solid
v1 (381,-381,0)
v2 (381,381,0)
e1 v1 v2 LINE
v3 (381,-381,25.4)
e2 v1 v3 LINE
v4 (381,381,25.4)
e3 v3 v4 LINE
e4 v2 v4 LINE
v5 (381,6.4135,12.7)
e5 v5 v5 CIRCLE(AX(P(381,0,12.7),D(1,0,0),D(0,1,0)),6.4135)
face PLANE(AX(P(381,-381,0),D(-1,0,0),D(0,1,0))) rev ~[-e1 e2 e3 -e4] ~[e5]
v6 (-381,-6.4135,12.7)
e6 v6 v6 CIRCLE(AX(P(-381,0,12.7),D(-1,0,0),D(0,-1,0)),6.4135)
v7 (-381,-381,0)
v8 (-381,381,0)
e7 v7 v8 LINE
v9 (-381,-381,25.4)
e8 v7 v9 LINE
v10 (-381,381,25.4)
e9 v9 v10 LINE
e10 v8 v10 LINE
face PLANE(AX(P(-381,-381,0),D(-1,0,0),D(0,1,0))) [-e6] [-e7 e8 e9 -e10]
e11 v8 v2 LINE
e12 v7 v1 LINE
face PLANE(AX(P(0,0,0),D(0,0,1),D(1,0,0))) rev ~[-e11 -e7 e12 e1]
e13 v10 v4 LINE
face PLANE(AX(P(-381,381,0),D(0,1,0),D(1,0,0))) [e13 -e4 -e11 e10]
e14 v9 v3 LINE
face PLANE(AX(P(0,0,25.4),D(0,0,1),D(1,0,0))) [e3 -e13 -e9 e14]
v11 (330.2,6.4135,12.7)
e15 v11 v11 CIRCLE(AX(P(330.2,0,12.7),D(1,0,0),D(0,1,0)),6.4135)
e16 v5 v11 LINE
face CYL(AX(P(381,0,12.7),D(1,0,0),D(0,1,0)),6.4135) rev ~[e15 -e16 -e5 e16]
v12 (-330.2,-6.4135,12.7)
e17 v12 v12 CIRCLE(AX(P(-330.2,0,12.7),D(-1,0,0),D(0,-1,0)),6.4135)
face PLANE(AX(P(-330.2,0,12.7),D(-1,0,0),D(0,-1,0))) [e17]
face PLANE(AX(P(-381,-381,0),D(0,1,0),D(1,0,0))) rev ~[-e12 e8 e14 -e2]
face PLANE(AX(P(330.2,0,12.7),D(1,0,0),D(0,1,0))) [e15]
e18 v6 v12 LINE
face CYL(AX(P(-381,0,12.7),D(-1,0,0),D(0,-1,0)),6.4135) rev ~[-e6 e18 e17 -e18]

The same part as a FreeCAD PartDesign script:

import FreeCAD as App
import Part
import Sketcher

V = App.Vector
Q = App.Units.Quantity


def add_polygon(sketch, points):
    """Adds a closed chain of lines whose ends are joined by coincident constraints."""
    first, n = sketch.GeometryCount, len(points)
    for a, b in zip(points, points[1:] + points[:1]):
        sketch.addGeometry(Part.LineSegment(App.Vector(*a, 0), App.Vector(*b, 0)), False)
    for i in range(n):
        sketch.addConstraint(Sketcher.Constraint("Coincident", first + i, 2, first + (i + 1) % n, 1))

doc = App.newDocument("Part")
body = doc.addObject("PartDesign::Body", "Body")

sketch1 = doc.addObject("Sketcher::SketchObject", "Sketch")
body.addObject(sketch1)
sketch1.AttachmentSupport = (doc.XY_Plane, [""])
sketch1.MapMode = "FlatFace"
add_polygon(sketch1, [(-381, 381), (-381, -381), (381, -381), (381, 381)])
sketch1.addConstraint(Sketcher.Constraint("Vertical", 0))
sketch1.addConstraint(Sketcher.Constraint("Horizontal", 1))
sketch1.addConstraint(Sketcher.Constraint("Vertical", 2))
sketch1.addConstraint(Sketcher.Constraint("Horizontal", 3))
sketch1.addConstraint(Sketcher.Constraint("Symmetric", 0, 2, 2, 2, -1, 1))
sketch1.addConstraint(Sketcher.Constraint("Equal", 3, 0))
sketch1.addConstraint(Sketcher.Constraint("DistanceX", 1, 1, 1, 2, Q("30 in")))
pad1 = doc.addObject("PartDesign::Pad", "Pad")
body.addObject(pad1)
pad1.Profile = sketch1
pad1.Length = Q("1 in")

sketch2 = doc.addObject("Sketcher::SketchObject", "Sketch001")
body.addObject(sketch2)
sketch2.AttachmentSupport = (doc.YZ_Plane, [""])
sketch2.MapMode = "FlatFace"
sketch2.AttachmentOffset = App.Placement(V(0, 0, 15 * 25.4), App.Rotation())
sketch2.addGeometry(Part.Circle(V(0, 13, 0), V(0, 0, 1), 6), False)
sketch2.addConstraint(Sketcher.Constraint("PointOnObject", 0, 3, -2))
sketch2.addConstraint(Sketcher.Constraint("Diameter", 0, Q("0.505 in")))
sketch2.addConstraint(Sketcher.Constraint("DistanceY", -1, 1, 0, 3, Q("0.5 in")))
pocket1 = doc.addObject("PartDesign::Pocket", "Pocket")
body.addObject(pocket1)
pocket1.Profile = sketch2
pocket1.Length = Q("2 in")

sketch3 = doc.addObject("Sketcher::SketchObject", "Sketch002")
body.addObject(sketch3)
sketch3.AttachmentSupport = (doc.YZ_Plane, [""])
sketch3.MapMode = "FlatFace"
sketch3.AttachmentOffset = App.Placement(V(0, 0, -15 * 25.4), App.Rotation())
sketch3.addGeometry(Part.Circle(V(0, 13, 0), V(0, 0, 1), 6), False)
sketch3.addConstraint(Sketcher.Constraint("PointOnObject", 0, 3, -2))
sketch3.addConstraint(Sketcher.Constraint("Diameter", 0, Q("0.505 in")))
sketch3.addConstraint(Sketcher.Constraint("DistanceY", -1, 1, 0, 3, Q("0.5 in")))
pocket2 = doc.addObject("PartDesign::Pocket", "Pocket001")
body.addObject(pocket2)
pocket2.Profile = sketch3
pocket2.Length = Q("2 in")
pocket2.Reversed = True

doc.recompute()
